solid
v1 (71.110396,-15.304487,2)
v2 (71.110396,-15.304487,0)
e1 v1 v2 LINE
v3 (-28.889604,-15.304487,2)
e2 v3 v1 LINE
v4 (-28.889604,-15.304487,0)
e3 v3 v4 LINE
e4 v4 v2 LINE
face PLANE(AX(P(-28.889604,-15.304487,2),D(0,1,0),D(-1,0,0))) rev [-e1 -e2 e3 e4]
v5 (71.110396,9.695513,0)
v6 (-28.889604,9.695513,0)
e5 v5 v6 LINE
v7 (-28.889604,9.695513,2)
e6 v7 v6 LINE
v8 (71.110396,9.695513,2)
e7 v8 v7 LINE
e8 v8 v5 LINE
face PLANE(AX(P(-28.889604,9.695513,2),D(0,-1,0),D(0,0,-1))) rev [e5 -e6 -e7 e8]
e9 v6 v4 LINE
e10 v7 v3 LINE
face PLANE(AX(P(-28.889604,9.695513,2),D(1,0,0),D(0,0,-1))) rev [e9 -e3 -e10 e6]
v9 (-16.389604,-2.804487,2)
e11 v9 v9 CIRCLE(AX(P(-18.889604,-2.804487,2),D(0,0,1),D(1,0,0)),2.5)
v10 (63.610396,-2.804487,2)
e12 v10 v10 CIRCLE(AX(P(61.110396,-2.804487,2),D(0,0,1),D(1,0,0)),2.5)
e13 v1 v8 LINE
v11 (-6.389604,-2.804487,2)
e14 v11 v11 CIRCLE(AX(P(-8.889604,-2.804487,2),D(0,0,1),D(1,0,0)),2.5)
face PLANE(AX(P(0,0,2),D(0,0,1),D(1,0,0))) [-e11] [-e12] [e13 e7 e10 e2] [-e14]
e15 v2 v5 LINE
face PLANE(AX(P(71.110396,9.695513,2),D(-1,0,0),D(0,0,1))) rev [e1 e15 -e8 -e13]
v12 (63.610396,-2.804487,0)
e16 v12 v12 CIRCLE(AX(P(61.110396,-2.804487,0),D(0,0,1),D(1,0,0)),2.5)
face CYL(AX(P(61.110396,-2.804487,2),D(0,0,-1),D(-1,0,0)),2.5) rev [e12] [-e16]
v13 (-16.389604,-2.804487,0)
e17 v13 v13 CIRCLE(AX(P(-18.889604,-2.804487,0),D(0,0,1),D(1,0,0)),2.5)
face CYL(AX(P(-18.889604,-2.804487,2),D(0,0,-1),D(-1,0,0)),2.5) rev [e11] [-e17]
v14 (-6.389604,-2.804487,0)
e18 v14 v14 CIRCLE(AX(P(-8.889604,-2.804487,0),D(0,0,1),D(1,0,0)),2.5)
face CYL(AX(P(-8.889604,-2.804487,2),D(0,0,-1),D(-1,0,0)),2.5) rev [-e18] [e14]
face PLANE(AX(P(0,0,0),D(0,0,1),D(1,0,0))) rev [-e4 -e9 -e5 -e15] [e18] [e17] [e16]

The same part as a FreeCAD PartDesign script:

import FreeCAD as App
import Part
import Sketcher

V = App.Vector
Q = App.Units.Quantity


def add_polygon(sketch, points):
    """Adds a closed chain of lines whose ends are joined by coincident constraints."""
    first, n = sketch.GeometryCount, len(points)
    for a, b in zip(points, points[1:] + points[:1]):
        sketch.addGeometry(Part.LineSegment(App.Vector(*a, 0), App.Vector(*b, 0)), False)
    for i in range(n):
        sketch.addConstraint(Sketcher.Constraint("Coincident", first + i, 2, first + (i + 1) % n, 1))

doc = App.newDocument("Part")
body = doc.addObject("PartDesign::Body", "Body")

# Sketch on XY plane
sketch1 = doc.addObject("Sketcher::SketchObject", "Sketch")
body.addObject(sketch1)
sketch1.AttachmentSupport = (doc.XY_Plane, [""])
sketch1.MapMode = "FlatFace"
add_polygon(sketch1, [(-28.9, 9.7), (-28.9, -15.3), (71.1, -15.3), (71.1, 9.7)])  # lines 0-3
sketch1.addGeometry(Part.Circle(V(-18.9, -2.8, 0), V(0, 0, 1), 2.5), False)  # 4
sketch1.addGeometry(Part.Circle(V(-8.9, -2.8, 0), V(0, 0, 1), 2.5), False)  # 5
sketch1.addGeometry(Part.Circle(V(61.1, -2.8, 0), V(0, 0, 1), 2.5), False)  # 6
sketch1.addConstraint([
    Sketcher.Constraint("Vertical", 0),
    Sketcher.Constraint("Horizontal", 1),
    Sketcher.Constraint("Vertical", 2),
    Sketcher.Constraint("Horizontal", 3),
    Sketcher.Constraint("Equal", 4, 5),
    Sketcher.Constraint("Equal", 5, 6),
    Sketcher.Constraint("Horizontal", 4, 3, 5, 3),
    Sketcher.Constraint("Horizontal", 5, 3, 6, 3),
    Sketcher.Constraint("Diameter", 4, Q("5 mm")),
    Sketcher.Constraint("DistanceX", 1, 1, 1, 2, Q("100 mm")),
    Sketcher.Constraint("DistanceY", 0, 2, 0, 1, Q("25 mm")),
    Sketcher.Constraint("DistanceX", 4, 3, 5, 3, Q("10 mm")),
    Sketcher.Constraint("DistanceX", 5, 3, 6, 3, Q("70 mm")),
    Sketcher.Constraint("DistanceX", 0, 2, 4, 3, Q("10 mm")),
    Sketcher.Constraint("DistanceY", 0, 2, 4, 3, Q("12.5 mm")),
    Sketcher.Constraint("DistanceX", 4, 3, -1, 1, Q("18.889604 mm")),
    Sketcher.Constraint("DistanceY", 4, 3, -1, 1, Q("2.804487 mm")),
])
pad1 = doc.addObject("PartDesign::Pad", "Pad")
body.addObject(pad1)
pad1.Profile = sketch1
pad1.Length = 2

doc.recompute()
